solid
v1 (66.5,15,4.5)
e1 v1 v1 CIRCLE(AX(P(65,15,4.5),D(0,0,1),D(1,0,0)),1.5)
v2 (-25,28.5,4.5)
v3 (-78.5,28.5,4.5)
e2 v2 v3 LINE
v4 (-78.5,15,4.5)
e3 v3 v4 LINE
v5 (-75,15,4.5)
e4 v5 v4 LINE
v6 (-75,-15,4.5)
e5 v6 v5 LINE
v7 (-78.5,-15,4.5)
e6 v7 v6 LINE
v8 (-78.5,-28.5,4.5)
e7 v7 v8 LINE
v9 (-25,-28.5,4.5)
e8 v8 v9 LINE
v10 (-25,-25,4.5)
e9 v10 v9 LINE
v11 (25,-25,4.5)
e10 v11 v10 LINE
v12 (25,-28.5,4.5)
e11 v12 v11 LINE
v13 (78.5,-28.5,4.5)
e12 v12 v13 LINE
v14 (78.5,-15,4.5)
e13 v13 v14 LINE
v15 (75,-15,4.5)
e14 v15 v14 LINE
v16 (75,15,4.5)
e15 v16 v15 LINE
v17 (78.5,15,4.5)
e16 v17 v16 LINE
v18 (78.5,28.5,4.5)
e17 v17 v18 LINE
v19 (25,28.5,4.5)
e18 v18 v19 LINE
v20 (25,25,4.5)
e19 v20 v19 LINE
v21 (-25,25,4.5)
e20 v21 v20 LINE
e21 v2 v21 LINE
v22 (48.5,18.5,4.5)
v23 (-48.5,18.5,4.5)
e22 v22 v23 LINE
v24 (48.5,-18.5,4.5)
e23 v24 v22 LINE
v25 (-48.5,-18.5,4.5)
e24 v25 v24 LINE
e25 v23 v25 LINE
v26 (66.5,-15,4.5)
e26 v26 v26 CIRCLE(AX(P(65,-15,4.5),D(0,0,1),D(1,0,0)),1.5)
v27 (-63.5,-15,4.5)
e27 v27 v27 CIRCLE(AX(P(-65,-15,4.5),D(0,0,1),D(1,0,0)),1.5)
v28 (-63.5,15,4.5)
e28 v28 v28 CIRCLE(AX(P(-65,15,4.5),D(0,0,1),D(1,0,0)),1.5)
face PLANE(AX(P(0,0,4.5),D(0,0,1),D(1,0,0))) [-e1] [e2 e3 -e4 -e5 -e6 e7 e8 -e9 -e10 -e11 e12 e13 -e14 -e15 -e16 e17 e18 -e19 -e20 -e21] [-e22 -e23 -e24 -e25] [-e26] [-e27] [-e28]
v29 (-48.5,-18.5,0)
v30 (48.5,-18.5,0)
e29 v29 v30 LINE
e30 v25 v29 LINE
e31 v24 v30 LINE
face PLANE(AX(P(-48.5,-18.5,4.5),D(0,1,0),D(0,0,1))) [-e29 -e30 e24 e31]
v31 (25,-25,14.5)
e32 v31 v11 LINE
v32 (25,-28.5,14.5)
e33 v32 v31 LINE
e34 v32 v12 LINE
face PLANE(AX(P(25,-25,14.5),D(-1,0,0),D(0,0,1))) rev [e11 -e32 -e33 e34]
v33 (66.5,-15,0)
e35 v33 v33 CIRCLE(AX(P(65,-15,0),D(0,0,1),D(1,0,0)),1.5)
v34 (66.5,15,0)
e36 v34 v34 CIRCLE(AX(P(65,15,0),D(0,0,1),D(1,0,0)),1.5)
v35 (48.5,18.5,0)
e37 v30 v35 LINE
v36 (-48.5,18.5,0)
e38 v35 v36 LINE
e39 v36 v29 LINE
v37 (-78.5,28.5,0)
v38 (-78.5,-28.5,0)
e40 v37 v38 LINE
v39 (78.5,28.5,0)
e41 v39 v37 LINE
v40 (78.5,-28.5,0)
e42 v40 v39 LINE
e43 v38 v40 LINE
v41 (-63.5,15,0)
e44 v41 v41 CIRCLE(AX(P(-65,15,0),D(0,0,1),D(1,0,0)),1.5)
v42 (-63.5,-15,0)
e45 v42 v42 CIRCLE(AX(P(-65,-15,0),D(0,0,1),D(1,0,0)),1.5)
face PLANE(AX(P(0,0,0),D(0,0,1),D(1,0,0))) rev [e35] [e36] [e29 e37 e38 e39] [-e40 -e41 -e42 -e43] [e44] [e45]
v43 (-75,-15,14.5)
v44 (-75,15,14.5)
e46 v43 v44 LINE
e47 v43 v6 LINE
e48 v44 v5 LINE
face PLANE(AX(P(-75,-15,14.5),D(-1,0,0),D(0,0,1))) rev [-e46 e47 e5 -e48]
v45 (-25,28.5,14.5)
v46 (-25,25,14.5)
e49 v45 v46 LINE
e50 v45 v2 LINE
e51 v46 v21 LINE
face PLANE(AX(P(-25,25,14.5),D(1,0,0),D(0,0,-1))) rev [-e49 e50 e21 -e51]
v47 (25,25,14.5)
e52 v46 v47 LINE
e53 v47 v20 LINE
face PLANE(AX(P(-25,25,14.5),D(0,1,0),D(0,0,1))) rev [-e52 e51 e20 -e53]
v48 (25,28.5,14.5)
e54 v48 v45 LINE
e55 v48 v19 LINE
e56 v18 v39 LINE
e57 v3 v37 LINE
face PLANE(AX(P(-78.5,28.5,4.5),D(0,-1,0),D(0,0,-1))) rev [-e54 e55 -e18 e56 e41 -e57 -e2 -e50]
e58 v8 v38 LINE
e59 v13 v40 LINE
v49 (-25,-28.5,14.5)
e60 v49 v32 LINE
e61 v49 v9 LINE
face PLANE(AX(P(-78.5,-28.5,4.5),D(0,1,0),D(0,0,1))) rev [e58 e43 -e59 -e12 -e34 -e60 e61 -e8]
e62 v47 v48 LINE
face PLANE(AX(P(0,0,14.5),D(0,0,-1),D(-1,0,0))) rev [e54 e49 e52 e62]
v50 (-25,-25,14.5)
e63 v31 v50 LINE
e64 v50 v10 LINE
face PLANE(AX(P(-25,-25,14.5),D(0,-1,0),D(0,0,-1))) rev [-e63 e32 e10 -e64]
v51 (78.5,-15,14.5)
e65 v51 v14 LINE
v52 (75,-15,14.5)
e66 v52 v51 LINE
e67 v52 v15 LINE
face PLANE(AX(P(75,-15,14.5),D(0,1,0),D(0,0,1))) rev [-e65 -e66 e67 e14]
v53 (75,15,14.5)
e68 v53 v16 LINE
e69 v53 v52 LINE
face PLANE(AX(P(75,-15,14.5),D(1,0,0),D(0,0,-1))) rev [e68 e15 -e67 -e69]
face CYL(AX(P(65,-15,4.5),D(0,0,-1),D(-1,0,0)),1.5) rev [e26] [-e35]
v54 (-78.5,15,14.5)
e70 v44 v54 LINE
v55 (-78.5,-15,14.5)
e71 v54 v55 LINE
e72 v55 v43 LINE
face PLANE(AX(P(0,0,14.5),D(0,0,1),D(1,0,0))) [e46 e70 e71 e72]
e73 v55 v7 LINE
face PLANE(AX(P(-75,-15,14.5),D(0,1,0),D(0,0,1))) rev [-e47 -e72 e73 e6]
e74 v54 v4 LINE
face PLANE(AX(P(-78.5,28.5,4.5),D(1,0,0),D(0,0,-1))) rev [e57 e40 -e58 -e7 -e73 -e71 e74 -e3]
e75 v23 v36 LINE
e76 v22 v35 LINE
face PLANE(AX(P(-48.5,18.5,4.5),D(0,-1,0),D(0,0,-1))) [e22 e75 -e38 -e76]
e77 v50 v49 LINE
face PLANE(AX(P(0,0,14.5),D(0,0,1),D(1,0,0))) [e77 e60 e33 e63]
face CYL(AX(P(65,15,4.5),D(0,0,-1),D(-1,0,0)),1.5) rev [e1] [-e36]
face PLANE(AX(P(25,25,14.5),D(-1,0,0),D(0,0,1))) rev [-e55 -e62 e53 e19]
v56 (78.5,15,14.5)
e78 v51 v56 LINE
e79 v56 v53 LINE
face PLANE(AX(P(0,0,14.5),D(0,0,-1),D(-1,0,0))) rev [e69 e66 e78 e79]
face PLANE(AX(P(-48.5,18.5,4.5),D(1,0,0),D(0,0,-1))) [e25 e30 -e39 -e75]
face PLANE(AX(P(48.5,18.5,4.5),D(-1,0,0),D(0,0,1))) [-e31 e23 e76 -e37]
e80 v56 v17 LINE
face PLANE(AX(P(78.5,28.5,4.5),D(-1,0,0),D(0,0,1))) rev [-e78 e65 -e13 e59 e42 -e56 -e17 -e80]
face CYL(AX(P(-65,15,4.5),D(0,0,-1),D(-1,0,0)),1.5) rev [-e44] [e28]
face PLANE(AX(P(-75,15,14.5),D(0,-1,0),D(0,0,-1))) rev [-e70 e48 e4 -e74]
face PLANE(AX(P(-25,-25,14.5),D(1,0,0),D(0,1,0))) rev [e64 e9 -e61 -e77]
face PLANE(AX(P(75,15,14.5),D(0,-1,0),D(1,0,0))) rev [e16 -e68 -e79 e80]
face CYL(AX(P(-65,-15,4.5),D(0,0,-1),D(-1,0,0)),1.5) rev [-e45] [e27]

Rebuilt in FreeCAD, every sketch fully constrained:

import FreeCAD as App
import Part
import Sketcher

V = App.Vector


def add_polygon(sketch, points):
    """Adds a closed chain of lines whose ends are joined by coincident constraints."""
    first, n = sketch.GeometryCount, len(points)
    for a, b in zip(points, points[1:] + points[:1]):
        sketch.addGeometry(Part.LineSegment(App.Vector(*a, 0), App.Vector(*b, 0)), False)
    for i in range(n):
        sketch.addConstraint(Sketcher.Constraint("Coincident", first + i, 2, first + (i + 1) % n, 1))

doc = App.newDocument("Part")
body = doc.addObject("PartDesign::Body", "Body")

# Sketch on XY plane
sketch1 = doc.addObject("Sketcher::SketchObject", "Sketch")
body.addObject(sketch1)
sketch1.AttachmentSupport = (doc.XY_Plane, [""])
sketch1.MapMode = "FlatFace"
add_polygon(sketch1, [(-78.5, 28.5), (-78.5, -28.5), (78.5, -28.5), (78.5, 28.5)])  # lines 0-3
sketch1.addGeometry(Part.Circle(V(-65, -15, 0), V(0, 0, 1), 1.5), False)  # 4
sketch1.addGeometry(Part.Circle(V(65, -15, 0), V(0, 0, 1), 1.5), False)  # 5
sketch1.addGeometry(Part.Circle(V(-65, 15, 0), V(0, 0, 1), 1.5), False)  # 6
add_polygon(sketch1, [(48.5, -18.5), (-48.5, -18.5), (-48.5, 18.5), (48.5, 18.5)])  # lines 7-10
sketch1.addGeometry(Part.Circle(V(65, 15, 0), V(0, 0, 1), 1.5), False)  # 11
sketch1.addConstraint([
    Sketcher.Constraint("Vertical", 0),
    Sketcher.Constraint("Horizontal", 1),
    Sketcher.Constraint("Vertical", 2),
    Sketcher.Constraint("Horizontal", 3),
    Sketcher.Constraint("Horizontal", 7),
    Sketcher.Constraint("Vertical", 8),
    Sketcher.Constraint("Horizontal", 9),
    Sketcher.Constraint("Vertical", 10),
    Sketcher.Constraint("Equal", 4, 5),
    Sketcher.Constraint("Equal", 5, 6),
    Sketcher.Constraint("Equal", 6, 11),
    Sketcher.Constraint("Symmetric", 5, 3, 6, 3, -1, 1),
    Sketcher.Constraint("Symmetric", 4, 3, 11, 3, -1, 1),
    Sketcher.Constraint("Symmetric", 0, 2, 2, 2, -1, 1),
    Sketcher.Constraint("Symmetric", 7, 2, 9, 2, -1, 1),
    Sketcher.Constraint("Symmetric", 4, 3, 5, 3, -2),
    Sketcher.Constraint("Diameter", 4, 3.0),
    Sketcher.Constraint("DistanceX", 1, 1, 1, 2, 157.0),
    Sketcher.Constraint("DistanceX", 7, 2, 7, 1, 97.0),
    Sketcher.Constraint("DistanceY", 0, 2, 0, 1, 57.0),
    Sketcher.Constraint("DistanceY", 8, 1, 8, 2, 37.0),
    Sketcher.Constraint("DistanceX", 4, 3, -1, 1, 65.0),
    Sketcher.Constraint("DistanceY", 4, 3, -1, 1, 15.0),
])
pad1 = doc.addObject("PartDesign::Pad", "Pad")
body.addObject(pad1)
pad1.Profile = sketch1
pad1.Length = 4.5

# Sketch on XY plane
sketch2 = doc.addObject("Sketcher::SketchObject", "Sketch001")
body.addObject(sketch2)
sketch2.AttachmentSupport = (doc.XY_Plane, [""])
sketch2.MapMode = "FlatFace"
sketch2.AttachmentOffset = App.Placement(V(0, 0, 4.5), App.Rotation())
add_polygon(sketch2, [(-78.5, 15), (-78.5, -15), (-75, -15), (-75, 15)])  # lines 0-3
add_polygon(sketch2, [(75, 15), (75, -15), (78.5, -15), (78.5, 15)])  # lines 4-7
add_polygon(sketch2, [(-25, 28.5), (-25, 25), (25, 25), (25, 28.5)])  # lines 8-11
add_polygon(sketch2, [(-25, -25), (-25, -28.5), (25, -28.5), (25, -25)])  # lines 12-15
sketch2.addConstraint([
    Sketcher.Constraint("Vertical", 0),
    Sketcher.Constraint("Horizontal", 1),
    Sketcher.Constraint("Vertical", 2),
    Sketcher.Constraint("Horizontal", 3),
    Sketcher.Constraint("Vertical", 4),
    Sketcher.Constraint("Horizontal", 5),
    Sketcher.Constraint("Vertical", 6),
    Sketcher.Constraint("Horizontal", 7),
    Sketcher.Constraint("Vertical", 8),
    Sketcher.Constraint("Horizontal", 9),
    Sketcher.Constraint("Vertical", 10),
    Sketcher.Constraint("Horizontal", 11),
    Sketcher.Constraint("Vertical", 12),
    Sketcher.Constraint("Horizontal", 13),
    Sketcher.Constraint("Vertical", 14),
    Sketcher.Constraint("Horizontal", 15),
    Sketcher.Constraint("Symmetric", 2, 2, 4, 2, -1, 1),
    Sketcher.Constraint("Symmetric", 0, 2, 6, 2, -1, 1),
    Sketcher.Constraint("Symmetric", 10, 2, 12, 2, -1, 1),
    Sketcher.Constraint("Symmetric", 8, 2, 14, 2, -1, 1),
    Sketcher.Constraint("Horizontal", 1, 2, 4, 2),
    Sketcher.Constraint("Vertical", 11, 2, 12, 2),
    Sketcher.Constraint("Equal", 7, 8),
    Sketcher.Constraint("DistanceX", 9, 1, 9, 2, 50.0),
    Sketcher.Constraint("DistanceY", 0, 2, 0, 1, 30.0),
    Sketcher.Constraint("DistanceX", 1, 1, 1, 2, 3.5),
    Sketcher.Constraint("DistanceX", 1, 2, -1, 1, 75.0),
    Sketcher.Constraint("DistanceY", -1, 1, 8, 2, 25.0),
])
pad2 = doc.addObject("PartDesign::Pad", "Pad001")
body.addObject(pad2)
pad2.Profile = sketch2
pad2.Length = 10

doc.recompute()
